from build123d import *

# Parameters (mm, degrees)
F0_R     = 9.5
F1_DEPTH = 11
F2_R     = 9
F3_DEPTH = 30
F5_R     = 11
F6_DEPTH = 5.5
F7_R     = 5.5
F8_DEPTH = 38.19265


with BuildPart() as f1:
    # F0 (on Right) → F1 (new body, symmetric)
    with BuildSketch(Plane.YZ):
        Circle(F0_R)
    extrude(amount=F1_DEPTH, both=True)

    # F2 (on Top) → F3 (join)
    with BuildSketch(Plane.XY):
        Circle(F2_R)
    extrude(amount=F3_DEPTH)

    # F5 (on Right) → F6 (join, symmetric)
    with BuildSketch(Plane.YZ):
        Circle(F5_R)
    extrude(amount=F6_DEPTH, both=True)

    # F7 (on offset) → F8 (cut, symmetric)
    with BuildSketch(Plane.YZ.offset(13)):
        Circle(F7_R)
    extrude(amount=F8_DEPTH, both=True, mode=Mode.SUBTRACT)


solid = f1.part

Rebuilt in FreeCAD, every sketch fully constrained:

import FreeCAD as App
import Part
import Sketcher

V = App.Vector
Q = App.Units.Quantity

doc = App.newDocument("Part")
body = doc.addObject("PartDesign::Body", "Body")

# Sketch on YZ plane
sketch1 = body.newObject("Sketcher::SketchObject", "Sketch")
sketch1.AttachmentSupport = (doc.getObject("YZ_Plane"), [""])
sketch1.MapMode = "FlatFace"
sketch1.addGeometry(Part.Circle(V(0, 0, 0), V(0, 0, 1), 10), False)
sketch1.addConstraint(Sketcher.Constraint("Coincident", 0, 3, -1, 1))
sketch1.addConstraint(Sketcher.Constraint("Diameter", 0, Q("19 mm")))
pad1 = body.newObject("PartDesign::Pad", "Pad")
pad1.Profile = sketch1
pad1.Length = 22
pad1.Midplane = True

# Sketch on XY plane
sketch2 = body.newObject("Sketcher::SketchObject", "Sketch001")
sketch2.AttachmentSupport = (doc.getObject("XY_Plane"), [""])
sketch2.MapMode = "FlatFace"
sketch2.addGeometry(Part.Circle(V(0, 0, 0), V(0, 0, 1), 9), False)
sketch2.addConstraint(Sketcher.Constraint("Coincident", 0, 3, -1, 1))
sketch2.addConstraint(Sketcher.Constraint("Diameter", 0, Q("18 mm")))
pad2 = body.newObject("PartDesign::Pad", "Pad001")
pad2.Profile = sketch2
pad2.Length = 30

# Sketch on YZ plane
sketch3 = body.newObject("Sketcher::SketchObject", "Sketch002")
sketch3.AttachmentSupport = (doc.getObject("YZ_Plane"), [""])
sketch3.MapMode = "FlatFace"
sketch3.addGeometry(Part.Circle(V(0, 0, 0), V(0, 0, 1), 11), False)
sketch3.addConstraint(Sketcher.Constraint("Coincident", 0, 3, -1, 1))
sketch3.addConstraint(Sketcher.Constraint("Diameter", 0, Q("22 mm")))
pad3 = body.newObject("PartDesign::Pad", "Pad002")
pad3.Profile = sketch3
pad3.Length = 11
pad3.Midplane = True

# Sketch on YZ plane
sketch4 = body.newObject("Sketcher::SketchObject", "Sketch003")
sketch4.AttachmentSupport = (doc.getObject("YZ_Plane"), [""])
sketch4.MapMode = "FlatFace"
sketch4.AttachmentOffset = App.Placement(V(0, 0, 13), App.Rotation())
sketch4.addGeometry(Part.Circle(V(0, 0, 0), V(0, 0, 1), 6), False)
sketch4.addConstraint(Sketcher.Constraint("Coincident", 0, 3, -1, 1))
sketch4.addConstraint(Sketcher.Constraint("Diameter", 0, Q("11 mm")))
pocket1 = body.newObject("PartDesign::Pocket", "Pocket")
pocket1.Profile = sketch4
pocket1.Length = 76.3853
pocket1.Midplane = True

doc.recompute()
